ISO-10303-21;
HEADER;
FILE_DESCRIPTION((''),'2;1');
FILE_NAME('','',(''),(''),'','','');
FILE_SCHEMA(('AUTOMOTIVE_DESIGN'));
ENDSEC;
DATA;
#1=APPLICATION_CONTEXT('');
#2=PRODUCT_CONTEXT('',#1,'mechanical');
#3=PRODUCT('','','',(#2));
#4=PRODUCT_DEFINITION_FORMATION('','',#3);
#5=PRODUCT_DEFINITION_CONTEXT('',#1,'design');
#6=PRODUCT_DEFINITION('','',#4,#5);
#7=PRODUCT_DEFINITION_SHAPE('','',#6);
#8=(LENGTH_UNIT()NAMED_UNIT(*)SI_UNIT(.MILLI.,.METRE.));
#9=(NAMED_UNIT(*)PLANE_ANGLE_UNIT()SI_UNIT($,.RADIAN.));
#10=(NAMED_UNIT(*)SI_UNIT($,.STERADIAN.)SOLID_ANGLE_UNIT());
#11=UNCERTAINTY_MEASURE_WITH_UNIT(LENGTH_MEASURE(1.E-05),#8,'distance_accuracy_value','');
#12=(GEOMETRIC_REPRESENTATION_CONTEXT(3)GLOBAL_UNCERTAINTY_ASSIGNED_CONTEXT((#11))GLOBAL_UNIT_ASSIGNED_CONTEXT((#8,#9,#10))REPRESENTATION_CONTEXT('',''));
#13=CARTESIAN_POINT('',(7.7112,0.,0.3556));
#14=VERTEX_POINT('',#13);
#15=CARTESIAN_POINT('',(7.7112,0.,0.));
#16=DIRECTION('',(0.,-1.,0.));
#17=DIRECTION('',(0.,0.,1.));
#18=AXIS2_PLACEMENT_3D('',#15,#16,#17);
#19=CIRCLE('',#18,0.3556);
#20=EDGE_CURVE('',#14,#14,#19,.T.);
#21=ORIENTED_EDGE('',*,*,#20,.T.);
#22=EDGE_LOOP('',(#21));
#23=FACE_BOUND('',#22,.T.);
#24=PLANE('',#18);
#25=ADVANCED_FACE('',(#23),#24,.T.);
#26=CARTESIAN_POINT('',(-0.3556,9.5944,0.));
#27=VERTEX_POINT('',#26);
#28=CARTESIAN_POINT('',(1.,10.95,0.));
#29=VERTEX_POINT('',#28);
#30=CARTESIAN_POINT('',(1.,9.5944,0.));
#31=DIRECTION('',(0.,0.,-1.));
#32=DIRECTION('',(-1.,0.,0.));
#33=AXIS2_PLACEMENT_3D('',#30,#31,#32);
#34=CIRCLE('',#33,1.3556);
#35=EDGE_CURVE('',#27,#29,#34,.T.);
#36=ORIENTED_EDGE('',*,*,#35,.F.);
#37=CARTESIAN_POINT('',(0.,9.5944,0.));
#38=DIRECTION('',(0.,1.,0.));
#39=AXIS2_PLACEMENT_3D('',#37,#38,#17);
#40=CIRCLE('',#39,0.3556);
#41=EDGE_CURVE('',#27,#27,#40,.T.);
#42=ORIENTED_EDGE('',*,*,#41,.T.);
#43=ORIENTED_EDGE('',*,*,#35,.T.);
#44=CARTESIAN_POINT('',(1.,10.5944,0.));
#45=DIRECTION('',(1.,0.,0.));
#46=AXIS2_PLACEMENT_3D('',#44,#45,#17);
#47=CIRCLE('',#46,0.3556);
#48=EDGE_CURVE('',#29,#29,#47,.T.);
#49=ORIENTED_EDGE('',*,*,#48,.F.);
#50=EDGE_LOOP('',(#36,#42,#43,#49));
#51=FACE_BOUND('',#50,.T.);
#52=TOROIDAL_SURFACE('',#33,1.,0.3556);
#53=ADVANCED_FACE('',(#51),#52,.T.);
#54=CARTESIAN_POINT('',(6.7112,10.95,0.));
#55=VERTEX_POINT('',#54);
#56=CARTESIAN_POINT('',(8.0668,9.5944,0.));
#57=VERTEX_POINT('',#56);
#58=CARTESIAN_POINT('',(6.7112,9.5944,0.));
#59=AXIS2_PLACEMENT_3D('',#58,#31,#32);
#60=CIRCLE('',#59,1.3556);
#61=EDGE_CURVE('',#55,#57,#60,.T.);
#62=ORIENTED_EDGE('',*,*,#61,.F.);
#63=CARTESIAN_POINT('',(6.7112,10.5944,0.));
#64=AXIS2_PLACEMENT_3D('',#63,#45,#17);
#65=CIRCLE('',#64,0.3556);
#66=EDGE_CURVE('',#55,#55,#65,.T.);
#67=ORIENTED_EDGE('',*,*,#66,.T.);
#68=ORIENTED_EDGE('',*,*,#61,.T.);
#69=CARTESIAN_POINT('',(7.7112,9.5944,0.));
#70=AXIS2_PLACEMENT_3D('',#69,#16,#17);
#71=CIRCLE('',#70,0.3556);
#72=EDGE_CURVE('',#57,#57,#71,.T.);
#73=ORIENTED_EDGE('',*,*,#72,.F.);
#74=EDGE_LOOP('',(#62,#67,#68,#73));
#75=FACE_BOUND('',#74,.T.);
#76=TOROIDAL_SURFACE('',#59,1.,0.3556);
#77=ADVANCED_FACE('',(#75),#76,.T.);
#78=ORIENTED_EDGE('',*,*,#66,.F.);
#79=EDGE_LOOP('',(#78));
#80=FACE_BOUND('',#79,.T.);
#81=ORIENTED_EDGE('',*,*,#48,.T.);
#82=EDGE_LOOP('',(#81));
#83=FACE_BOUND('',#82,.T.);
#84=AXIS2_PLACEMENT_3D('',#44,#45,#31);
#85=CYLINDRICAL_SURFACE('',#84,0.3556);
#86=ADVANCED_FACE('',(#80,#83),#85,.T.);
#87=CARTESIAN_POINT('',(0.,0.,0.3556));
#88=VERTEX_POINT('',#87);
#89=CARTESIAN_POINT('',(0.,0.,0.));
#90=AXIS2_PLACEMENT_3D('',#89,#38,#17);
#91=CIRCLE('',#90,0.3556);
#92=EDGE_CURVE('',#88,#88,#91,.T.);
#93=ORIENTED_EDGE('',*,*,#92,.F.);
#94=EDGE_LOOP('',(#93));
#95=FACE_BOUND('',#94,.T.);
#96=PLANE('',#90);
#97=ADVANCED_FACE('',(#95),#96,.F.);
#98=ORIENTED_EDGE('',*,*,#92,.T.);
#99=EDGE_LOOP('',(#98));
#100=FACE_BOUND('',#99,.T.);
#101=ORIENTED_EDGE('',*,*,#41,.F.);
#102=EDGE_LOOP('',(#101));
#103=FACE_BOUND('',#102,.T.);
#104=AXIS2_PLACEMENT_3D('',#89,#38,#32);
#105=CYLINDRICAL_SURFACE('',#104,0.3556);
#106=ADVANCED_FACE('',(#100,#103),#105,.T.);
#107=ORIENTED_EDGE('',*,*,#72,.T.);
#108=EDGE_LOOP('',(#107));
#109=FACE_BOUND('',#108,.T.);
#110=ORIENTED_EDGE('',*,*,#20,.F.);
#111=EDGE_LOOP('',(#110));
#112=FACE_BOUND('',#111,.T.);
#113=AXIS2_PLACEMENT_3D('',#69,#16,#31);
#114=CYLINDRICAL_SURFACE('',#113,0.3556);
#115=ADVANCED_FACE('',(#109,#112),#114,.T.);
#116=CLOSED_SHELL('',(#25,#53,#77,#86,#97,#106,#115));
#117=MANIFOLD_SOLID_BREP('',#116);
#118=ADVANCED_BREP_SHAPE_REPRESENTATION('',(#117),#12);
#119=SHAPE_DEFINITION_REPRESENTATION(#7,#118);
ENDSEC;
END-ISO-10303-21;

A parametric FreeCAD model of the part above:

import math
import FreeCAD as App
import Part
import Sketcher

V = App.Vector
Q = App.Units.Quantity

doc = App.newDocument("Part")
params = doc.addObject("Spreadsheet::Sheet", "Params")
for row, (alias, value) in enumerate([
    ("sketch2_radius", "1 mm"),
], start=1):
    params.set(f"A{row}", alias)
    params.set(f"B{row}", "=" + value)
    params.setAlias(f"B{row}", alias)

body = doc.addObject("PartDesign::Body", "Body")

# Sketch on XZ plane
sketch1 = body.newObject("Sketcher::SketchObject", "Sketch")
sketch1.AttachmentSupport = (doc.getObject("XZ_Plane"), [""])
sketch1.MapMode = "FlatFace"
sketch1.addGeometry(Part.Circle(V(0, 0, 0), V(0, 0, 1), 0.3556), False)
sketch1.addConstraint(Sketcher.Constraint("Coincident", 0, 3, -1, 1))
sketch1.addConstraint(Sketcher.Constraint("Diameter", 0, Q("0.7112 mm")))

# Sketch on XY plane
sketch2 = body.newObject("Sketcher::SketchObject", "Sketch001")
sketch2.AttachmentSupport = (doc.getObject("XY_Plane"), [""])
sketch2.MapMode = "FlatFace"
sketch2.addGeometry(Part.LineSegment(V(0, 0, 0), V(0, 9.5944, 0)), False)
sketch2.addGeometry(Part.ArcOfCircle(Part.Circle(V(1, 9.5944, 0), V(0, 0, 1), 1), math.radians(90), math.radians(180)), False)
sketch2.addGeometry(Part.LineSegment(V(1, 10.5944, 0), V(6.7112, 10.5944, 0)), False)
sketch2.addGeometry(Part.ArcOfCircle(Part.Circle(V(6.7112, 9.5944, 0), V(0, 0, 1), 1), math.radians(0), math.radians(90)), False)
sketch2.addGeometry(Part.LineSegment(V(7.7112, 9.5944, 0), V(7.7112, 0, 0)), False)
sketch2.addConstraint(Sketcher.Constraint("Tangent", 0, 2, 1, 2))
sketch2.addConstraint(Sketcher.Constraint("Tangent", 1, 1, 2, 1))
sketch2.addConstraint(Sketcher.Constraint("Tangent", 2, 2, 3, 2))
sketch2.addConstraint(Sketcher.Constraint("Tangent", 3, 1, 4, 1))
sketch2.addConstraint(Sketcher.Constraint("Vertical", 0))
sketch2.addConstraint(Sketcher.Constraint("Horizontal", 2))
sketch2.addConstraint(Sketcher.Constraint("Vertical", 4))
sketch2.addConstraint(Sketcher.Constraint("Coincident", 0, 1, -1, 1))
sketch2.addConstraint(Sketcher.Constraint("Equal", 1, 3))
sketch2.addConstraint(Sketcher.Constraint("PointOnObject", 4, 2, -1))
sketch2.addConstraint(Sketcher.Constraint("Radius", 1, Q("1 mm")))
sketch2.addConstraint(Sketcher.Constraint("DistanceX", 2, 1, 2, 2, Q("5.7112 mm")))
sketch2.addConstraint(Sketcher.Constraint("DistanceY", 0, 1, 0, 2, Q("9.5944 mm")))
sketch2.setExpression("Constraints[10]", "Params.sketch2_radius")
doc.recompute()

additivepipe = body.newObject("PartDesign::AdditivePipe", "AdditivePipe")
additivepipe.Profile = sketch1
additivepipe.Spine = (sketch2, ["Edge1", "Edge2", "Edge3", "Edge4", "Edge5"])

doc.recompute()
